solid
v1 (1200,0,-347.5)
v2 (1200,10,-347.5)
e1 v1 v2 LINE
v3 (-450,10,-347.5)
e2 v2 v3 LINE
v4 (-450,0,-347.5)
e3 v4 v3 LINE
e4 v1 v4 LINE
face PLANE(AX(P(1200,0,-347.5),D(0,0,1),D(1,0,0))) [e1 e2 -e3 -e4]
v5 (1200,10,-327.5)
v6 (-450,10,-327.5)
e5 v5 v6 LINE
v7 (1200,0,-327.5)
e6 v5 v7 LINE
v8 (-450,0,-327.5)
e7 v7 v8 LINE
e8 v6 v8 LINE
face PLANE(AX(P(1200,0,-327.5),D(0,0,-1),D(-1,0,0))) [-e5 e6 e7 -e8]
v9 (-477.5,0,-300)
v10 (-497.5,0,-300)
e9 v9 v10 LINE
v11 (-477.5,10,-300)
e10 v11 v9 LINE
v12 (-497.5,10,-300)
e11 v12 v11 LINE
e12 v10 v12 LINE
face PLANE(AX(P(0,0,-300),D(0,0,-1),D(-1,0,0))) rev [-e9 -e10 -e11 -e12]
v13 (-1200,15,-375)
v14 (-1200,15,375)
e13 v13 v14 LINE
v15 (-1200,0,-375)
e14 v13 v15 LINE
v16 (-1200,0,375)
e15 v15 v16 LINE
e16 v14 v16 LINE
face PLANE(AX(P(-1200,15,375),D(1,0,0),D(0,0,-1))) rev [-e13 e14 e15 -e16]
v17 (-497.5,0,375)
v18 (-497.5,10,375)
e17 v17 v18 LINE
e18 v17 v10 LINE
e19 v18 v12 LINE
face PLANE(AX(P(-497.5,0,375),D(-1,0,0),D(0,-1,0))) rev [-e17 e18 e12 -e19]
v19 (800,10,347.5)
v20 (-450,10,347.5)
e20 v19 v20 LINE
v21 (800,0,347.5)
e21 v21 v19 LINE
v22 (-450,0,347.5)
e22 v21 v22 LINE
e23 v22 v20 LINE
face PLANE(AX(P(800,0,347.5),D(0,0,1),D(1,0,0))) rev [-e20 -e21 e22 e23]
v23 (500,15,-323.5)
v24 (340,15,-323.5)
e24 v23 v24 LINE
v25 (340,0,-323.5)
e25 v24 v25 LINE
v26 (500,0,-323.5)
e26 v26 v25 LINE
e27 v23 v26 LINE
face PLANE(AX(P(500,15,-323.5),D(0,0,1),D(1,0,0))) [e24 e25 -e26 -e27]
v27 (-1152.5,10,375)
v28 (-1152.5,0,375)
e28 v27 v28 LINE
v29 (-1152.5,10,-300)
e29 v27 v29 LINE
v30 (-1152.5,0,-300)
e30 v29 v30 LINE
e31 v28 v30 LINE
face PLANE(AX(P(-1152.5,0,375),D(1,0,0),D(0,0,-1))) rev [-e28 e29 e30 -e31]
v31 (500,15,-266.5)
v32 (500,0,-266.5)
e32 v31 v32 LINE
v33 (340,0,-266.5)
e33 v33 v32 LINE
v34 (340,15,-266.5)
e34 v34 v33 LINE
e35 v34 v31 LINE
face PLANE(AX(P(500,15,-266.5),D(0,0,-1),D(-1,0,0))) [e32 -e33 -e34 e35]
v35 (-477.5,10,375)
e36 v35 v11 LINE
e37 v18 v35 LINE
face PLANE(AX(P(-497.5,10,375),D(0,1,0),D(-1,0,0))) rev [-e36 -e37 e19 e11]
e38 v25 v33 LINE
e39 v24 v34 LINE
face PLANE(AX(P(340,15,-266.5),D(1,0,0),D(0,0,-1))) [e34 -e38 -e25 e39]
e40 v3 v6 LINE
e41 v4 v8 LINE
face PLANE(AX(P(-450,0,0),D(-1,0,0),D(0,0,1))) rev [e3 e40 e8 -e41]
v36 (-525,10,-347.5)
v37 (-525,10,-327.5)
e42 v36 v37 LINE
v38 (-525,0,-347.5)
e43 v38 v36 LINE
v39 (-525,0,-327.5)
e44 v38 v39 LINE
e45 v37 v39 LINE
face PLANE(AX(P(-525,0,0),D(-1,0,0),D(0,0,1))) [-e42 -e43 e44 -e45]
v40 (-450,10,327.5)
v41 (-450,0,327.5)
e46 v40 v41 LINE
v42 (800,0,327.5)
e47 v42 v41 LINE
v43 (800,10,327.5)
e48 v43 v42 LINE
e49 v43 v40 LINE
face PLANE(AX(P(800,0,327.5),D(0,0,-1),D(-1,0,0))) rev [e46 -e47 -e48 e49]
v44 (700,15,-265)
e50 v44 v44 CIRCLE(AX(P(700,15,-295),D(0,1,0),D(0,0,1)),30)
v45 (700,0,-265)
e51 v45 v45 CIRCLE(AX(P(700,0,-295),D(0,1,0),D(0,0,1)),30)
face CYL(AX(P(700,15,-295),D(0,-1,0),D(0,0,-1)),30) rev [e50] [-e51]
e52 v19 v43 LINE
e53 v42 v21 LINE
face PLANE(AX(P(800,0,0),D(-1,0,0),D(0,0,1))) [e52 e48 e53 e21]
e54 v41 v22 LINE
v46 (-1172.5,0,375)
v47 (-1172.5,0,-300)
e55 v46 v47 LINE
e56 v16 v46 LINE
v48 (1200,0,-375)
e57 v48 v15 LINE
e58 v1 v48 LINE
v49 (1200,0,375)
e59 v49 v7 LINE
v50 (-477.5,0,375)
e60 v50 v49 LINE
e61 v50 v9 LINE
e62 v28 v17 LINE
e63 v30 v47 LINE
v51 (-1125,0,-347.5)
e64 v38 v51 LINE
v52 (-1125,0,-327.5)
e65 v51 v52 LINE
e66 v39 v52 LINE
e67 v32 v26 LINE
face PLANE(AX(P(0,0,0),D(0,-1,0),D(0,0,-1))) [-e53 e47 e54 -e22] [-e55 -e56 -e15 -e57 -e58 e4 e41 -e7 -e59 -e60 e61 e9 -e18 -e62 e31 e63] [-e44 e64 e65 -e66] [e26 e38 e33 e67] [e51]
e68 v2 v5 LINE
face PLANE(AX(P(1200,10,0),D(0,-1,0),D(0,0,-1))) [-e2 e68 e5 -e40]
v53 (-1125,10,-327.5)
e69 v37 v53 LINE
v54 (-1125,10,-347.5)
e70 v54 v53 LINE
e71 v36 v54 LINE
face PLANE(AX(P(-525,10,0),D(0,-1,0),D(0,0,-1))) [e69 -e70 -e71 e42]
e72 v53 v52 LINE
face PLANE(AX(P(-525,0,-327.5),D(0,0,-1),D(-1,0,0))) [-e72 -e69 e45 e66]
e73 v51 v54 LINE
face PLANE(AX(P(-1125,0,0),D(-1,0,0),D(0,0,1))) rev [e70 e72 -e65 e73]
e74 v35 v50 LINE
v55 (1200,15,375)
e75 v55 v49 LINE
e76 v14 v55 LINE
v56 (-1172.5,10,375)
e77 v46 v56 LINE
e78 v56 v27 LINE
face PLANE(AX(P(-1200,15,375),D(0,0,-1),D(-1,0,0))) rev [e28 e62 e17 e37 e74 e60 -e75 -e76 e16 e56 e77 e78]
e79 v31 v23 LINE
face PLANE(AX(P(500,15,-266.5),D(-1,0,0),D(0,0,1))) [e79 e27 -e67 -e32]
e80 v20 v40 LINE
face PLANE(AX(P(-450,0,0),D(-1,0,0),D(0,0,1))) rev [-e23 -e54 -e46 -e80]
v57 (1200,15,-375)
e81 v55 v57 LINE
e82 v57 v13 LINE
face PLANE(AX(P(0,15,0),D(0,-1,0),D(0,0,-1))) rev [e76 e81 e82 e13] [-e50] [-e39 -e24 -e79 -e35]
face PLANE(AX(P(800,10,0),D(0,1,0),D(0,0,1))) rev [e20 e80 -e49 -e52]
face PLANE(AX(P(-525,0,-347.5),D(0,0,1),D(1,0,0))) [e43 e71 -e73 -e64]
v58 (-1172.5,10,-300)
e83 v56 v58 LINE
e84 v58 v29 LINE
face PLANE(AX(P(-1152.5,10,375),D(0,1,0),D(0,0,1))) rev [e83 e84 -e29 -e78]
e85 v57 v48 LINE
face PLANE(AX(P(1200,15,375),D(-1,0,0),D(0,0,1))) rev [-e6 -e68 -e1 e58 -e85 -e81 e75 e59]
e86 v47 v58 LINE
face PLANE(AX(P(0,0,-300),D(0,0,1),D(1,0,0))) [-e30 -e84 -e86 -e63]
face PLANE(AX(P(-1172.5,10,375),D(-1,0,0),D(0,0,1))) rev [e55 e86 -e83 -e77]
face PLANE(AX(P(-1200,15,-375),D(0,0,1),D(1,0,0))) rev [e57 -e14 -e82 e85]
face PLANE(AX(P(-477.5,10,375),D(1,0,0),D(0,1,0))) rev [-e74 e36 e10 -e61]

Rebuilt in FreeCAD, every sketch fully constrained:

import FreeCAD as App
import Part
import Sketcher

V = App.Vector
Q = App.Units.Quantity

doc = App.newDocument("Part")
body = doc.addObject("PartDesign::Body", "Body")

# Sketch on XZ plane
sketch1 = doc.addObject("Sketcher::SketchObject", "Sketch")
body.addObject(sketch1)
sketch1.AttachmentSupport = (doc.XZ_Plane, [""])
sketch1.MapMode = "FlatFace"
sketch1.addGeometry(Part.LineSegment(V(-1200, -375, 0), V(-1200, 375, 0)), False)
sketch1.addGeometry(Part.LineSegment(V(-1200, 375, 0), V(1200, 375, 0)), False)
sketch1.addGeometry(Part.LineSegment(V(1200, 375, 0), V(1200, -375, 0)), False)
sketch1.addGeometry(Part.LineSegment(V(1200, -375, 0), V(-1200, -375, 0)), False)
sketch1.addGeometry(Part.LineSegment(V(500, -266.5, 0), V(340, -266.5, 0)), False)
sketch1.addGeometry(Part.LineSegment(V(340, -266.5, 0), V(340, -323.5, 0)), False)
sketch1.addGeometry(Part.LineSegment(V(340, -323.5, 0), V(500, -323.5, 0)), False)
sketch1.addGeometry(Part.LineSegment(V(500, -323.5, 0), V(500, -266.5, 0)), False)
sketch1.addGeometry(Part.Circle(V(700, -295, 0), V(0, 0, 1), 30), False)
sketch1.addConstraint(Sketcher.Constraint("Coincident", 0, 2, 1, 1))
sketch1.addConstraint(Sketcher.Constraint("Coincident", 1, 2, 2, 1))
sketch1.addConstraint(Sketcher.Constraint("Coincident", 2, 2, 3, 1))
sketch1.addConstraint(Sketcher.Constraint("Coincident", 3, 2, 0, 1))
sketch1.addConstraint(Sketcher.Constraint("Coincident", 4, 2, 5, 1))
sketch1.addConstraint(Sketcher.Constraint("Coincident", 5, 2, 6, 1))
sketch1.addConstraint(Sketcher.Constraint("Coincident", 6, 2, 7, 1))
sketch1.addConstraint(Sketcher.Constraint("Coincident", 7, 2, 4, 1))
sketch1.addConstraint(Sketcher.Constraint("Vertical", 0))
sketch1.addConstraint(Sketcher.Constraint("Horizontal", 1))
sketch1.addConstraint(Sketcher.Constraint("Vertical", 2))
sketch1.addConstraint(Sketcher.Constraint("Horizontal", 3))
sketch1.addConstraint(Sketcher.Constraint("Horizontal", 4))
sketch1.addConstraint(Sketcher.Constraint("Vertical", 5))
sketch1.addConstraint(Sketcher.Constraint("Horizontal", 6))
sketch1.addConstraint(Sketcher.Constraint("Vertical", 7))
sketch1.addConstraint(Sketcher.Constraint("Symmetric", 0, 2, 2, 2, -1, 1))
sketch1.addConstraint(Sketcher.Constraint("Diameter", 8, Q("60 mm")))
sketch1.addConstraint(Sketcher.Constraint("DistanceX", 1, 1, 1, 2, Q("2400 mm")))
sketch1.addConstraint(Sketcher.Constraint("DistanceX", 4, 2, 4, 1, Q("160 mm")))
sketch1.addConstraint(Sketcher.Constraint("DistanceY", 0, 1, 0, 2, Q("750 mm")))
sketch1.addConstraint(Sketcher.Constraint("DistanceY", 5, 2, 5, 1, Q("57 mm")))
sketch1.addConstraint(Sketcher.Constraint("DistanceX", -1, 1, 8, 3, Q("700 mm")))
sketch1.addConstraint(Sketcher.Constraint("DistanceY", 8, 3, -1, 1, Q("295 mm")))
sketch1.addConstraint(Sketcher.Constraint("DistanceX", -1, 1, 4, 2, Q("340 mm")))
sketch1.addConstraint(Sketcher.Constraint("DistanceY", 4, 2, -1, 1, Q("266.5 mm")))
pad1 = doc.addObject("PartDesign::Pad", "Pad")
body.addObject(pad1)
pad1.Profile = sketch1
pad1.Length = 15
pad1.Reversed = True

# Sketch on XY plane
sketch2 = doc.addObject("Sketcher::SketchObject", "Sketch001")
body.addObject(sketch2)
sketch2.AttachmentSupport = (doc.XY_Plane, [""])
sketch2.MapMode = "FlatFace"
sketch2.AttachmentOffset = App.Placement(V(0, 0, -300), App.Rotation())
sketch2.addGeometry(Part.LineSegment(V(-1152.5, 10, 0), V(-1152.5, 0, 0)), False)
sketch2.addGeometry(Part.LineSegment(V(-1152.5, 0, 0), V(-1172.5, 0, 0)), False)
sketch2.addGeometry(Part.LineSegment(V(-1172.5, 0, 0), V(-1172.5, 10, 0)), False)
sketch2.addGeometry(Part.LineSegment(V(-1172.5, 10, 0), V(-1152.5, 10, 0)), False)
sketch2.addGeometry(Part.LineSegment(V(-477.5, 10, 0), V(-477.5, 0, 0)), False)
sketch2.addGeometry(Part.LineSegment(V(-477.5, 0, 0), V(-497.5, 0, 0)), False)
sketch2.addGeometry(Part.LineSegment(V(-497.5, 0, 0), V(-497.5, 10, 0)), False)
sketch2.addGeometry(Part.LineSegment(V(-497.5, 10, 0), V(-477.5, 10, 0)), False)
sketch2.addConstraint(Sketcher.Constraint("Coincident", 0, 2, 1, 1))
sketch2.addConstraint(Sketcher.Constraint("Coincident", 1, 2, 2, 1))
sketch2.addConstraint(Sketcher.Constraint("Coincident", 2, 2, 3, 1))
sketch2.addConstraint(Sketcher.Constraint("Coincident", 3, 2, 0, 1))
sketch2.addConstraint(Sketcher.Constraint("Coincident", 4, 2, 5, 1))
sketch2.addConstraint(Sketcher.Constraint("Coincident", 5, 2, 6, 1))
sketch2.addConstraint(Sketcher.Constraint("Coincident", 6, 2, 7, 1))
sketch2.addConstraint(Sketcher.Constraint("Coincident", 7, 2, 4, 1))
sketch2.addConstraint(Sketcher.Constraint("Vertical", 0))
sketch2.addConstraint(Sketcher.Constraint("Horizontal", 1))
sketch2.addConstraint(Sketcher.Constraint("Vertical", 2))
sketch2.addConstraint(Sketcher.Constraint("Horizontal", 3))
sketch2.addConstraint(Sketcher.Constraint("Vertical", 4))
sketch2.addConstraint(Sketcher.Constraint("Horizontal", 5))
sketch2.addConstraint(Sketcher.Constraint("Vertical", 6))
sketch2.addConstraint(Sketcher.Constraint("Horizontal", 7))
sketch2.addConstraint(Sketcher.Constraint("PointOnObject", 0, 2, -1))
sketch2.addConstraint(Sketcher.Constraint("PointOnObject", 4, 2, -1))
sketch2.addConstraint(Sketcher.Constraint("Horizontal", 3, 2, 6, 2))
sketch2.addConstraint(Sketcher.Constraint("Equal", 3, 5))
sketch2.addConstraint(Sketcher.Constraint("DistanceX", 1, 2, 1, 1, Q("20 mm")))
sketch2.addConstraint(Sketcher.Constraint("DistanceY", 0, 2, 0, 1, Q("10 mm")))
sketch2.addConstraint(Sketcher.Constraint("DistanceX", 0, 2, 4, 2, Q("675 mm")))
sketch2.addConstraint(Sketcher.Constraint("DistanceX", 0, 2, -1, 1, Q("1152.5 mm")))
pocket1 = doc.addObject("PartDesign::Pocket", "Pocket")
body.addObject(pocket1)
pocket1.Profile = sketch2
pocket1.Type = "ThroughAll"
pocket1.Reversed = True

# Sketch on YZ plane
sketch3 = doc.addObject("Sketcher::SketchObject", "Sketch002")
body.addObject(sketch3)
sketch3.AttachmentSupport = (doc.YZ_Plane, [""])
sketch3.MapMode = "FlatFace"
sketch3.AttachmentOffset = App.Placement(V(0, 0, -525), App.Rotation())
sketch3.addGeometry(Part.LineSegment(V(10, -347.5, 0), V(0, -347.5, 0)), False)
sketch3.addGeometry(Part.LineSegment(V(0, -347.5, 0), V(0, -327.5, 0)), False)
sketch3.addGeometry(Part.LineSegment(V(0, -327.5, 0), V(10, -327.5, 0)), False)
sketch3.addGeometry(Part.LineSegment(V(10, -327.5, 0), V(10, -347.5, 0)), False)
sketch3.addConstraint(Sketcher.Constraint("Coincident", 0, 2, 1, 1))
sketch3.addConstraint(Sketcher.Constraint("Coincident", 1, 2, 2, 1))
sketch3.addConstraint(Sketcher.Constraint("Coincident", 2, 2, 3, 1))
sketch3.addConstraint(Sketcher.Constraint("Coincident", 3, 2, 0, 1))
sketch3.addConstraint(Sketcher.Constraint("Horizontal", 0))
sketch3.addConstraint(Sketcher.Constraint("Vertical", 1))
sketch3.addConstraint(Sketcher.Constraint("Horizontal", 2))
sketch3.addConstraint(Sketcher.Constraint("Vertical", 3))
sketch3.addConstraint(Sketcher.Constraint("PointOnObject", 0, 2, -2))
sketch3.addConstraint(Sketcher.Constraint("DistanceX", 0, 2, 0, 1, Q("10 mm")))
sketch3.addConstraint(Sketcher.Constraint("DistanceY", 1, 1, 1, 2, Q("20 mm")))
sketch3.addConstraint(Sketcher.Constraint("DistanceY", 0, 2, -1, 1, Q("347.5 mm")))
pocket2 = doc.addObject("PartDesign::Pocket", "Pocket001")
body.addObject(pocket2)
pocket2.Profile = sketch3
pocket2.Length = 600

# Sketch on YZ plane
sketch4 = doc.addObject("Sketcher::SketchObject", "Sketch003")
body.addObject(sketch4)
sketch4.AttachmentSupport = (doc.YZ_Plane, [""])
sketch4.MapMode = "FlatFace"
sketch4.AttachmentOffset = App.Placement(V(0, 0, 1200), App.Rotation())
sketch4.addGeometry(Part.LineSegment(V(10, -347.5, 0), V(0, -347.5, 0)), False)
sketch4.addGeometry(Part.LineSegment(V(0, -347.5, 0), V(0, -327.5, 0)), False)
sketch4.addGeometry(Part.LineSegment(V(0, -327.5, 0), V(10, -327.5, 0)), False)
sketch4.addGeometry(Part.LineSegment(V(10, -327.5, 0), V(10, -347.5, 0)), False)
sketch4.addConstraint(Sketcher.Constraint("Coincident", 0, 2, 1, 1))
sketch4.addConstraint(Sketcher.Constraint("Coincident", 1, 2, 2, 1))
sketch4.addConstraint(Sketcher.Constraint("Coincident", 2, 2, 3, 1))
sketch4.addConstraint(Sketcher.Constraint("Coincident", 3, 2, 0, 1))
sketch4.addConstraint(Sketcher.Constraint("Horizontal", 0))
sketch4.addConstraint(Sketcher.Constraint("Vertical", 1))
sketch4.addConstraint(Sketcher.Constraint("Horizontal", 2))
sketch4.addConstraint(Sketcher.Constraint("Vertical", 3))
sketch4.addConstraint(Sketcher.Constraint("PointOnObject", 0, 2, -2))
sketch4.addConstraint(Sketcher.Constraint("DistanceX", 0, 2, 0, 1, Q("10 mm")))
sketch4.addConstraint(Sketcher.Constraint("DistanceY", 1, 1, 1, 2, Q("20 mm")))
sketch4.addConstraint(Sketcher.Constraint("DistanceY", 0, 2, -1, 1, Q("347.5 mm")))
pocket3 = doc.addObject("PartDesign::Pocket", "Pocket002")
body.addObject(pocket3)
pocket3.Profile = sketch4
pocket3.Length = 1650

# Sketch on YZ plane
sketch5 = doc.addObject("Sketcher::SketchObject", "Sketch004")
body.addObject(sketch5)
sketch5.AttachmentSupport = (doc.YZ_Plane, [""])
sketch5.MapMode = "FlatFace"
sketch5.AttachmentOffset = App.Placement(V(0, 0, 800), App.Rotation())
sketch5.addGeometry(Part.LineSegment(V(10, 327.5, 0), V(0, 327.5, 0)), False)
sketch5.addGeometry(Part.LineSegment(V(0, 327.5, 0), V(0, 347.5, 0)), False)
sketch5.addGeometry(Part.LineSegment(V(0, 347.5, 0), V(10, 347.5, 0)), False)
sketch5.addGeometry(Part.LineSegment(V(10, 347.5, 0), V(10, 327.5, 0)), False)
sketch5.addConstraint(Sketcher.Constraint("Coincident", 0, 2, 1, 1))
sketch5.addConstraint(Sketcher.Constraint("Coincident", 1, 2, 2, 1))
sketch5.addConstraint(Sketcher.Constraint("Coincident", 2, 2, 3, 1))
sketch5.addConstraint(Sketcher.Constraint("Coincident", 3, 2, 0, 1))
sketch5.addConstraint(Sketcher.Constraint("Horizontal", 0))
sketch5.addConstraint(Sketcher.Constraint("Vertical", 1))
sketch5.addConstraint(Sketcher.Constraint("Horizontal", 2))
sketch5.addConstraint(Sketcher.Constraint("Vertical", 3))
sketch5.addConstraint(Sketcher.Constraint("PointOnObject", 0, 2, -2))
sketch5.addConstraint(Sketcher.Constraint("DistanceX", 0, 2, 0, 1, Q("10 mm")))
sketch5.addConstraint(Sketcher.Constraint("DistanceY", 1, 1, 1, 2, Q("20 mm")))
sketch5.addConstraint(Sketcher.Constraint("DistanceY", -1, 1, 0, 2, Q("327.5 mm")))
pocket4 = doc.addObject("PartDesign::Pocket", "Pocket003")
body.addObject(pocket4)
pocket4.Profile = sketch5
pocket4.Length = 1250

doc.recompute()
